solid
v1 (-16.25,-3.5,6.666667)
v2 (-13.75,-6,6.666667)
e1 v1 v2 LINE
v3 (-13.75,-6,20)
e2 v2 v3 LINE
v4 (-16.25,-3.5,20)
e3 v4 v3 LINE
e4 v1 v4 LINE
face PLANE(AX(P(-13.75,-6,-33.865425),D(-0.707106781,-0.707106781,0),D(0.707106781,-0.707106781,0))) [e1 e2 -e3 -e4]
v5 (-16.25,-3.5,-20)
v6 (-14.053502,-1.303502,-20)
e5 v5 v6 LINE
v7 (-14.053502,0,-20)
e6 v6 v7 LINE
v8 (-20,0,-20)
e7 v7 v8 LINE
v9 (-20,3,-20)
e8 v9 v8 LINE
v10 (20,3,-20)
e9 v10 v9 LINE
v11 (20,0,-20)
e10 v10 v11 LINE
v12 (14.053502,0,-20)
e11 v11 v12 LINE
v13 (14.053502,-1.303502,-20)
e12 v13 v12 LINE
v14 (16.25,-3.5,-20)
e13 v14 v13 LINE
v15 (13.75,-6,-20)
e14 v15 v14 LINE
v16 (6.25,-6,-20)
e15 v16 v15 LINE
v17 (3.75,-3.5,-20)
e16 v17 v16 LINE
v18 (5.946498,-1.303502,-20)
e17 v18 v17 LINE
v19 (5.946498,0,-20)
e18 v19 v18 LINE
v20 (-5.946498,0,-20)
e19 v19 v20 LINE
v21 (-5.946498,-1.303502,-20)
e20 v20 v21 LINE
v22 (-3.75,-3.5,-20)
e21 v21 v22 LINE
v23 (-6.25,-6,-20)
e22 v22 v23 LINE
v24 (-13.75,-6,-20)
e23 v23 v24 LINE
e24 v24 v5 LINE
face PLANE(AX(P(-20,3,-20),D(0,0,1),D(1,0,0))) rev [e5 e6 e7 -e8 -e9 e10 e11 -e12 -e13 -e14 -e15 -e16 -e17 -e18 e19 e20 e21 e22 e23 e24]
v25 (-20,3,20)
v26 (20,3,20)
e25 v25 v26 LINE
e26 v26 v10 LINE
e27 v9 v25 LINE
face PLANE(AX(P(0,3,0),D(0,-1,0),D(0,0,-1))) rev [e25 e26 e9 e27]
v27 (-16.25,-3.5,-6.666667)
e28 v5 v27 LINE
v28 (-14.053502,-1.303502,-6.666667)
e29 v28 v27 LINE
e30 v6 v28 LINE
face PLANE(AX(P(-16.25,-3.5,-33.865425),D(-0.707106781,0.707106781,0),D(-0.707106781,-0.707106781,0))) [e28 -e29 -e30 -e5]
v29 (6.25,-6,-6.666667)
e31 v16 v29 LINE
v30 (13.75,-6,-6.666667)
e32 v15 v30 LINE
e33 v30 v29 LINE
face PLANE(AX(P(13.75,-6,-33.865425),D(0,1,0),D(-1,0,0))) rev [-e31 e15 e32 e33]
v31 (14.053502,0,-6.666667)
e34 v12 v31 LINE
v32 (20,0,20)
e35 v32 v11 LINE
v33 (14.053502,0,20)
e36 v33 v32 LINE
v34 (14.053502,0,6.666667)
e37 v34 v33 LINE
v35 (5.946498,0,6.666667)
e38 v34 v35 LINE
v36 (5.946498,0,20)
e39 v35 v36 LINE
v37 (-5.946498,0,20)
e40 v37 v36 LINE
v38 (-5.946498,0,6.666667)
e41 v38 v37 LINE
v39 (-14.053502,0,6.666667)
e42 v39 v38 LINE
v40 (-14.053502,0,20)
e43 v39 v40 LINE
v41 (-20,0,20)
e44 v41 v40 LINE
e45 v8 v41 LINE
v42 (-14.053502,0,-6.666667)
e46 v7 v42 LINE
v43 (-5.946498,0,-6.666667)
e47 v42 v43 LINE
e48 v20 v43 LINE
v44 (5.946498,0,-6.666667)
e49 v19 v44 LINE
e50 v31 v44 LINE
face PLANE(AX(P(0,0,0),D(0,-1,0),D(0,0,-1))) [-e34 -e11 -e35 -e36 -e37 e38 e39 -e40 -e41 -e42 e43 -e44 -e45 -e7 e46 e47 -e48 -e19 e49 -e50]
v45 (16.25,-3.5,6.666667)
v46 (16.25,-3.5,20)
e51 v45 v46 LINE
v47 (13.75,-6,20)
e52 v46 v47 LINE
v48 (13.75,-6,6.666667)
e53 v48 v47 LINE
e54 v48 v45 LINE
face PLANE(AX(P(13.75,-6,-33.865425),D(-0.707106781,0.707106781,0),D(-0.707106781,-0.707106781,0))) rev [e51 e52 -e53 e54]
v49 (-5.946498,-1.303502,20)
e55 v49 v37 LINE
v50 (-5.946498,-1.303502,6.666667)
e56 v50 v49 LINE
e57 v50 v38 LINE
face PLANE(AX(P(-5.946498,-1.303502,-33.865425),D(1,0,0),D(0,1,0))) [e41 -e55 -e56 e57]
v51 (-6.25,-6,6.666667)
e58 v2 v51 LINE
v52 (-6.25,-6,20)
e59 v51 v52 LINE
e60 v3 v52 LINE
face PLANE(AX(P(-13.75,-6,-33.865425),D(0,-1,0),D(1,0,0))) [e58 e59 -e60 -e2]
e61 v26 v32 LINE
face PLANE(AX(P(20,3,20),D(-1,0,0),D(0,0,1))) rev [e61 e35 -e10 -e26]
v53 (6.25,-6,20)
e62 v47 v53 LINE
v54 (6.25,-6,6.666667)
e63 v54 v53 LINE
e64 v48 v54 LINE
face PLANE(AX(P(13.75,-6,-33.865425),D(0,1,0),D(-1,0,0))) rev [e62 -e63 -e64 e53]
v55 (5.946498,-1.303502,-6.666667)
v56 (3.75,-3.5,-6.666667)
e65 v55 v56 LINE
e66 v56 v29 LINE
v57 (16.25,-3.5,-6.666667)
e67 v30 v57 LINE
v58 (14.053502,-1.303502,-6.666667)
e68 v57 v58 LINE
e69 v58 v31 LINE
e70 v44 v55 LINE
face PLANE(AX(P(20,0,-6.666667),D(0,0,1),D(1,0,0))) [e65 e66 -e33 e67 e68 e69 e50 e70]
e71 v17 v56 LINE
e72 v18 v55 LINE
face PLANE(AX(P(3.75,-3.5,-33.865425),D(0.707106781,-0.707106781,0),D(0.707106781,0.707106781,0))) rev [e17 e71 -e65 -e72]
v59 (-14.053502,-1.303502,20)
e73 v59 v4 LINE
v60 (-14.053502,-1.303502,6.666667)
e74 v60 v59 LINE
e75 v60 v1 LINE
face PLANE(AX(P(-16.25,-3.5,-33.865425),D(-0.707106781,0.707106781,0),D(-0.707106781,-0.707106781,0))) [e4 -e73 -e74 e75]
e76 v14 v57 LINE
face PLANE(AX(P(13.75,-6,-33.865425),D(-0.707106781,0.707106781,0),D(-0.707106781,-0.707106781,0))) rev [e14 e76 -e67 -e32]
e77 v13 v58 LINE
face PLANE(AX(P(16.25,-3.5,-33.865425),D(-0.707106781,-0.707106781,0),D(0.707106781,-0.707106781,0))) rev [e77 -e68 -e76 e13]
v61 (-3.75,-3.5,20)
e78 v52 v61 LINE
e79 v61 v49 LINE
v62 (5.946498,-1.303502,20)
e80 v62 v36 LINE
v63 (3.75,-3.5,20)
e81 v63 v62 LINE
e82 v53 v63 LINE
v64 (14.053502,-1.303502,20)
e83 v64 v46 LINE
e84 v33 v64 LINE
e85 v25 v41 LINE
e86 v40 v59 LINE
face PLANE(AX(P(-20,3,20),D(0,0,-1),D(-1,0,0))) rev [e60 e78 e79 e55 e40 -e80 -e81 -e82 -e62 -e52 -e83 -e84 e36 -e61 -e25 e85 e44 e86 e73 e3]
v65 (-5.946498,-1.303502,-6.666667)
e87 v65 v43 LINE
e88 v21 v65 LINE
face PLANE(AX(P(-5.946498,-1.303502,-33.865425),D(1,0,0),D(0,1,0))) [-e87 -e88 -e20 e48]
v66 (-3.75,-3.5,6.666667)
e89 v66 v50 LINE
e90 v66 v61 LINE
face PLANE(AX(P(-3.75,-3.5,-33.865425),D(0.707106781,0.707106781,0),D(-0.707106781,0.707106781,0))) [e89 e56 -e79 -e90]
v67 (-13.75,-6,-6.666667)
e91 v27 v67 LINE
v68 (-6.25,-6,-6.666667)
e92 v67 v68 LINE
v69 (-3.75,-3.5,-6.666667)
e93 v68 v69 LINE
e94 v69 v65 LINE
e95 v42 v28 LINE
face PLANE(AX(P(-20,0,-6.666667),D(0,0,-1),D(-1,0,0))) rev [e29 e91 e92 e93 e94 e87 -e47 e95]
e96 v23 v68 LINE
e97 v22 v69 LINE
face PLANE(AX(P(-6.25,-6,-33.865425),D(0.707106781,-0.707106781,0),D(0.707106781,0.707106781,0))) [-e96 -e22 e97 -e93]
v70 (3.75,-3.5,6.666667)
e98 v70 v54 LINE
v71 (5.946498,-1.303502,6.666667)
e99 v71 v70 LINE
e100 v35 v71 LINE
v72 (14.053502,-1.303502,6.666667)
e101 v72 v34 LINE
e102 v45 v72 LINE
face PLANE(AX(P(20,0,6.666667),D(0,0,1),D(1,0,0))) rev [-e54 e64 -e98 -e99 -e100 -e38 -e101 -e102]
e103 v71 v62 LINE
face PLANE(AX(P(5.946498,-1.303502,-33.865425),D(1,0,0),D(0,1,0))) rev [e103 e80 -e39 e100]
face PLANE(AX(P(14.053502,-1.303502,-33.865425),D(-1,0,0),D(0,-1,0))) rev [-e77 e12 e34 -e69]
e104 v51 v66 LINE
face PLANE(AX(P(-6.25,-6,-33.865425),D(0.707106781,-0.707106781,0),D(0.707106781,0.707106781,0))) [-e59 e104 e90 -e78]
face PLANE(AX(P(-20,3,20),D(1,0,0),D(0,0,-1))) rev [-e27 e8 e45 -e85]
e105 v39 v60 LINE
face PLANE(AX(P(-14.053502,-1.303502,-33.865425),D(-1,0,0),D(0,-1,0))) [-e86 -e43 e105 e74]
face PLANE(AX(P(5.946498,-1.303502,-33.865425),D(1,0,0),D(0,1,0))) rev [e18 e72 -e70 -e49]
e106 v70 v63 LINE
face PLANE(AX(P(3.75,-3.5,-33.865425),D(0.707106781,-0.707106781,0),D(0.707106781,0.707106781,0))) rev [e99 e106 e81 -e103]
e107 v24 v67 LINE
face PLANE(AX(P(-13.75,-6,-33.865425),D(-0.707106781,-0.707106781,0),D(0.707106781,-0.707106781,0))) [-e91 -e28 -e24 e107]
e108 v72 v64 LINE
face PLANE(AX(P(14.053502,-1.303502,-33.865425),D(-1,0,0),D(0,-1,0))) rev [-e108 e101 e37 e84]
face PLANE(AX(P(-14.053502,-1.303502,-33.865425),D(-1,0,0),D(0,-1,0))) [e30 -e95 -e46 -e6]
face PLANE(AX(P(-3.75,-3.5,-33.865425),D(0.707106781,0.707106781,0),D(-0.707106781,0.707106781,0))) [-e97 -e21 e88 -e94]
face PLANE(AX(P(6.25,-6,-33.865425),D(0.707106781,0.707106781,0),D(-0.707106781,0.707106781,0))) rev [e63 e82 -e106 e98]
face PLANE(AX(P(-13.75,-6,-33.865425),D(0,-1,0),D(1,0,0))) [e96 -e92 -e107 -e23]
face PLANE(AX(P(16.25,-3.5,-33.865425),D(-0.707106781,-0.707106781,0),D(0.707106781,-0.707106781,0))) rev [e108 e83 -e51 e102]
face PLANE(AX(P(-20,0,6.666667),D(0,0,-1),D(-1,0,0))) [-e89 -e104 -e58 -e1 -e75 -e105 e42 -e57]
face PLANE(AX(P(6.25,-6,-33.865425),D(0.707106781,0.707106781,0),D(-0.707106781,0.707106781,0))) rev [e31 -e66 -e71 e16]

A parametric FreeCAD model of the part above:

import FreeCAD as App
import Part
import Sketcher
from FreeCAD import Vector

doc = App.newDocument("Part")
body = doc.addObject("PartDesign::Body", "Body")

# Sketch on XZ plane
sketch1 = body.newObject("Sketcher::SketchObject", "Sketch")
sketch1.AttachmentSupport = (doc.getObject("XZ_Plane"), [""])
sketch1.MapMode = "FlatFace"
sketch1.addGeometry([
    Part.LineSegment(Vector(-20, -20, 0), Vector(-20, 20, 0)),
    Part.LineSegment(Vector(-20, 20, 0), Vector(20, 20, 0)),
    Part.LineSegment(Vector(20, 20, 0), Vector(20, -20, 0)),
    Part.LineSegment(Vector(20, -20, 0), Vector(-20, -20, 0)),
], False)
sketch1.addConstraint([
    Sketcher.Constraint("Coincident", 0, 2, 1, 1),
    Sketcher.Constraint("Coincident", 1, 2, 2, 1),
    Sketcher.Constraint("Coincident", 2, 2, 3, 1),
    Sketcher.Constraint("Coincident", 3, 2, 0, 1),
    Sketcher.Constraint("Vertical", 0),
    Sketcher.Constraint("Horizontal", 1),
    Sketcher.Constraint("Vertical", 2),
    Sketcher.Constraint("Horizontal", 3),
    Sketcher.Constraint("Symmetric", 0, 2, 2, 2, -1, 1),
    Sketcher.Constraint("Equal", 3, 0),
    Sketcher.Constraint("DistanceX", 1, 1, 1, 2, 40.0),
])
pad1 = body.newObject("PartDesign::Pad", "Pad")
pad1.Profile = sketch1
pad1.Length = 3
pad1.Reversed = True

# Sketch on XY plane
sketch2 = body.newObject("Sketcher::SketchObject", "Sketch001")
sketch2.AttachmentSupport = (doc.getObject("XY_Plane"), [""])
sketch2.MapMode = "FlatFace"
sketch2.AttachmentOffset = App.Placement(Vector(0, 0, 20), App.Rotation())
sketch2.addGeometry([
    Part.LineSegment(Vector(-13.8, -6, 0), Vector(-6.2, -6, 0)),  # 0
    Part.LineSegment(Vector(-6.2, -6, 0), Vector(-3.8, -3.5, 0)),  # 1
    Part.LineSegment(Vector(-3.8, -3.5, 0), Vector(-5.9, -1.3, 0)),  # 2
    Part.LineSegment(Vector(-5.9, -1.3, 0), Vector(-5.9, 0, 0)),  # 3
    Part.LineSegment(Vector(-5.9, 0, 0), Vector(-14.1, 0, 0)),  # 4
    Part.LineSegment(Vector(-14.1, 0, 0), Vector(-14.1, -1.3, 0)),  # 5
    Part.LineSegment(Vector(-14.1, -1.3, 0), Vector(-16.2, -3.5, 0)),  # 6
    Part.LineSegment(Vector(-16.2, -3.5, 0), Vector(-13.8, -6, 0)),  # 7
], False)
sketch2.addConstraint([
    Sketcher.Constraint("Coincident", 0, 2, 1, 1),
    Sketcher.Constraint("Coincident", 1, 2, 2, 1),
    Sketcher.Constraint("Coincident", 2, 2, 3, 1),
    Sketcher.Constraint("Coincident", 3, 2, 4, 1),
    Sketcher.Constraint("Coincident", 4, 2, 5, 1),
    Sketcher.Constraint("Coincident", 5, 2, 6, 1),
    Sketcher.Constraint("Coincident", 6, 2, 7, 1),
    Sketcher.Constraint("Coincident", 7, 2, 0, 1),
    Sketcher.Constraint("Horizontal", 0),
    Sketcher.Constraint("Vertical", 3),
    Sketcher.Constraint("Horizontal", 4),
    Sketcher.Constraint("Vertical", 5),
    Sketcher.Constraint("PointOnObject", 3, 2, -1),
    Sketcher.Constraint("Perpendicular", 1, 2),
    Sketcher.Constraint("Perpendicular", 2, 6),
    Sketcher.Constraint("Perpendicular", 6, 7),
    Sketcher.Constraint("Horizontal", 2, 2, 5, 2),
    Sketcher.Constraint("Horizontal", 1, 2, 6, 2),
    Sketcher.Constraint("Equal", 2, 6),
    Sketcher.Constraint("DistanceX", 0, 1, 0, 2, 7.5),
    Sketcher.Constraint("DistanceY", 0, 2, -1, 1, 6.0),
    Sketcher.Constraint("DistanceX", 6, 2, 0, 2, 10.0),
    Sketcher.Constraint("DistanceX", 0, 2, -1, 1, 6.25),
    Sketcher.Constraint("DistanceY", 3, 1, 3, 2, 1.303502),
])
pad2 = body.newObject("PartDesign::Pad", "Pad001")
pad2.Profile = sketch2
pad2.Length = 40
pad2.Reversed = True

# Sketch on YZ plane
sketch3 = body.newObject("Sketcher::SketchObject", "Sketch002")
sketch3.AttachmentSupport = (doc.getObject("YZ_Plane"), [""])
sketch3.MapMode = "FlatFace"
sketch3.addGeometry([
    Part.LineSegment(Vector(0, 7, 0), Vector(-6, 7, 0)),
    Part.LineSegment(Vector(-6, 7, 0), Vector(-6, -7, 0)),
    Part.LineSegment(Vector(-6, -7, 0), Vector(0, -7, 0)),
    Part.LineSegment(Vector(0, -7, 0), Vector(0, 7, 0)),
], False)
sketch3.addConstraint([
    Sketcher.Constraint("Coincident", 0, 2, 1, 1),
    Sketcher.Constraint("Coincident", 1, 2, 2, 1),
    Sketcher.Constraint("Coincident", 2, 2, 3, 1),
    Sketcher.Constraint("Coincident", 3, 2, 0, 1),
    Sketcher.Constraint("Horizontal", 0),
    Sketcher.Constraint("Vertical", 1),
    Sketcher.Constraint("Horizontal", 2),
    Sketcher.Constraint("Vertical", 3),
    Sketcher.Constraint("Symmetric", 2, 2, 3, 2, -1, 1),
    Sketcher.Constraint("DistanceX", 0, 2, 0, 1, 6.0),
    Sketcher.Constraint("DistanceY", 1, 2, 1, 1, 13.333333),
])
pocket1 = body.newObject("PartDesign::Pocket", "Pocket")
pocket1.Profile = sketch3
pocket1.Type = "ThroughAll"
doc.recompute()

mirrored = body.newObject("PartDesign::Mirrored", "Mirrored")
mirrored.Originals = [pad2, pocket1]
mirrored.MirrorPlane = (doc.getObject("YZ_Plane"), [""])
body.Tip = mirrored

doc.recompute()
